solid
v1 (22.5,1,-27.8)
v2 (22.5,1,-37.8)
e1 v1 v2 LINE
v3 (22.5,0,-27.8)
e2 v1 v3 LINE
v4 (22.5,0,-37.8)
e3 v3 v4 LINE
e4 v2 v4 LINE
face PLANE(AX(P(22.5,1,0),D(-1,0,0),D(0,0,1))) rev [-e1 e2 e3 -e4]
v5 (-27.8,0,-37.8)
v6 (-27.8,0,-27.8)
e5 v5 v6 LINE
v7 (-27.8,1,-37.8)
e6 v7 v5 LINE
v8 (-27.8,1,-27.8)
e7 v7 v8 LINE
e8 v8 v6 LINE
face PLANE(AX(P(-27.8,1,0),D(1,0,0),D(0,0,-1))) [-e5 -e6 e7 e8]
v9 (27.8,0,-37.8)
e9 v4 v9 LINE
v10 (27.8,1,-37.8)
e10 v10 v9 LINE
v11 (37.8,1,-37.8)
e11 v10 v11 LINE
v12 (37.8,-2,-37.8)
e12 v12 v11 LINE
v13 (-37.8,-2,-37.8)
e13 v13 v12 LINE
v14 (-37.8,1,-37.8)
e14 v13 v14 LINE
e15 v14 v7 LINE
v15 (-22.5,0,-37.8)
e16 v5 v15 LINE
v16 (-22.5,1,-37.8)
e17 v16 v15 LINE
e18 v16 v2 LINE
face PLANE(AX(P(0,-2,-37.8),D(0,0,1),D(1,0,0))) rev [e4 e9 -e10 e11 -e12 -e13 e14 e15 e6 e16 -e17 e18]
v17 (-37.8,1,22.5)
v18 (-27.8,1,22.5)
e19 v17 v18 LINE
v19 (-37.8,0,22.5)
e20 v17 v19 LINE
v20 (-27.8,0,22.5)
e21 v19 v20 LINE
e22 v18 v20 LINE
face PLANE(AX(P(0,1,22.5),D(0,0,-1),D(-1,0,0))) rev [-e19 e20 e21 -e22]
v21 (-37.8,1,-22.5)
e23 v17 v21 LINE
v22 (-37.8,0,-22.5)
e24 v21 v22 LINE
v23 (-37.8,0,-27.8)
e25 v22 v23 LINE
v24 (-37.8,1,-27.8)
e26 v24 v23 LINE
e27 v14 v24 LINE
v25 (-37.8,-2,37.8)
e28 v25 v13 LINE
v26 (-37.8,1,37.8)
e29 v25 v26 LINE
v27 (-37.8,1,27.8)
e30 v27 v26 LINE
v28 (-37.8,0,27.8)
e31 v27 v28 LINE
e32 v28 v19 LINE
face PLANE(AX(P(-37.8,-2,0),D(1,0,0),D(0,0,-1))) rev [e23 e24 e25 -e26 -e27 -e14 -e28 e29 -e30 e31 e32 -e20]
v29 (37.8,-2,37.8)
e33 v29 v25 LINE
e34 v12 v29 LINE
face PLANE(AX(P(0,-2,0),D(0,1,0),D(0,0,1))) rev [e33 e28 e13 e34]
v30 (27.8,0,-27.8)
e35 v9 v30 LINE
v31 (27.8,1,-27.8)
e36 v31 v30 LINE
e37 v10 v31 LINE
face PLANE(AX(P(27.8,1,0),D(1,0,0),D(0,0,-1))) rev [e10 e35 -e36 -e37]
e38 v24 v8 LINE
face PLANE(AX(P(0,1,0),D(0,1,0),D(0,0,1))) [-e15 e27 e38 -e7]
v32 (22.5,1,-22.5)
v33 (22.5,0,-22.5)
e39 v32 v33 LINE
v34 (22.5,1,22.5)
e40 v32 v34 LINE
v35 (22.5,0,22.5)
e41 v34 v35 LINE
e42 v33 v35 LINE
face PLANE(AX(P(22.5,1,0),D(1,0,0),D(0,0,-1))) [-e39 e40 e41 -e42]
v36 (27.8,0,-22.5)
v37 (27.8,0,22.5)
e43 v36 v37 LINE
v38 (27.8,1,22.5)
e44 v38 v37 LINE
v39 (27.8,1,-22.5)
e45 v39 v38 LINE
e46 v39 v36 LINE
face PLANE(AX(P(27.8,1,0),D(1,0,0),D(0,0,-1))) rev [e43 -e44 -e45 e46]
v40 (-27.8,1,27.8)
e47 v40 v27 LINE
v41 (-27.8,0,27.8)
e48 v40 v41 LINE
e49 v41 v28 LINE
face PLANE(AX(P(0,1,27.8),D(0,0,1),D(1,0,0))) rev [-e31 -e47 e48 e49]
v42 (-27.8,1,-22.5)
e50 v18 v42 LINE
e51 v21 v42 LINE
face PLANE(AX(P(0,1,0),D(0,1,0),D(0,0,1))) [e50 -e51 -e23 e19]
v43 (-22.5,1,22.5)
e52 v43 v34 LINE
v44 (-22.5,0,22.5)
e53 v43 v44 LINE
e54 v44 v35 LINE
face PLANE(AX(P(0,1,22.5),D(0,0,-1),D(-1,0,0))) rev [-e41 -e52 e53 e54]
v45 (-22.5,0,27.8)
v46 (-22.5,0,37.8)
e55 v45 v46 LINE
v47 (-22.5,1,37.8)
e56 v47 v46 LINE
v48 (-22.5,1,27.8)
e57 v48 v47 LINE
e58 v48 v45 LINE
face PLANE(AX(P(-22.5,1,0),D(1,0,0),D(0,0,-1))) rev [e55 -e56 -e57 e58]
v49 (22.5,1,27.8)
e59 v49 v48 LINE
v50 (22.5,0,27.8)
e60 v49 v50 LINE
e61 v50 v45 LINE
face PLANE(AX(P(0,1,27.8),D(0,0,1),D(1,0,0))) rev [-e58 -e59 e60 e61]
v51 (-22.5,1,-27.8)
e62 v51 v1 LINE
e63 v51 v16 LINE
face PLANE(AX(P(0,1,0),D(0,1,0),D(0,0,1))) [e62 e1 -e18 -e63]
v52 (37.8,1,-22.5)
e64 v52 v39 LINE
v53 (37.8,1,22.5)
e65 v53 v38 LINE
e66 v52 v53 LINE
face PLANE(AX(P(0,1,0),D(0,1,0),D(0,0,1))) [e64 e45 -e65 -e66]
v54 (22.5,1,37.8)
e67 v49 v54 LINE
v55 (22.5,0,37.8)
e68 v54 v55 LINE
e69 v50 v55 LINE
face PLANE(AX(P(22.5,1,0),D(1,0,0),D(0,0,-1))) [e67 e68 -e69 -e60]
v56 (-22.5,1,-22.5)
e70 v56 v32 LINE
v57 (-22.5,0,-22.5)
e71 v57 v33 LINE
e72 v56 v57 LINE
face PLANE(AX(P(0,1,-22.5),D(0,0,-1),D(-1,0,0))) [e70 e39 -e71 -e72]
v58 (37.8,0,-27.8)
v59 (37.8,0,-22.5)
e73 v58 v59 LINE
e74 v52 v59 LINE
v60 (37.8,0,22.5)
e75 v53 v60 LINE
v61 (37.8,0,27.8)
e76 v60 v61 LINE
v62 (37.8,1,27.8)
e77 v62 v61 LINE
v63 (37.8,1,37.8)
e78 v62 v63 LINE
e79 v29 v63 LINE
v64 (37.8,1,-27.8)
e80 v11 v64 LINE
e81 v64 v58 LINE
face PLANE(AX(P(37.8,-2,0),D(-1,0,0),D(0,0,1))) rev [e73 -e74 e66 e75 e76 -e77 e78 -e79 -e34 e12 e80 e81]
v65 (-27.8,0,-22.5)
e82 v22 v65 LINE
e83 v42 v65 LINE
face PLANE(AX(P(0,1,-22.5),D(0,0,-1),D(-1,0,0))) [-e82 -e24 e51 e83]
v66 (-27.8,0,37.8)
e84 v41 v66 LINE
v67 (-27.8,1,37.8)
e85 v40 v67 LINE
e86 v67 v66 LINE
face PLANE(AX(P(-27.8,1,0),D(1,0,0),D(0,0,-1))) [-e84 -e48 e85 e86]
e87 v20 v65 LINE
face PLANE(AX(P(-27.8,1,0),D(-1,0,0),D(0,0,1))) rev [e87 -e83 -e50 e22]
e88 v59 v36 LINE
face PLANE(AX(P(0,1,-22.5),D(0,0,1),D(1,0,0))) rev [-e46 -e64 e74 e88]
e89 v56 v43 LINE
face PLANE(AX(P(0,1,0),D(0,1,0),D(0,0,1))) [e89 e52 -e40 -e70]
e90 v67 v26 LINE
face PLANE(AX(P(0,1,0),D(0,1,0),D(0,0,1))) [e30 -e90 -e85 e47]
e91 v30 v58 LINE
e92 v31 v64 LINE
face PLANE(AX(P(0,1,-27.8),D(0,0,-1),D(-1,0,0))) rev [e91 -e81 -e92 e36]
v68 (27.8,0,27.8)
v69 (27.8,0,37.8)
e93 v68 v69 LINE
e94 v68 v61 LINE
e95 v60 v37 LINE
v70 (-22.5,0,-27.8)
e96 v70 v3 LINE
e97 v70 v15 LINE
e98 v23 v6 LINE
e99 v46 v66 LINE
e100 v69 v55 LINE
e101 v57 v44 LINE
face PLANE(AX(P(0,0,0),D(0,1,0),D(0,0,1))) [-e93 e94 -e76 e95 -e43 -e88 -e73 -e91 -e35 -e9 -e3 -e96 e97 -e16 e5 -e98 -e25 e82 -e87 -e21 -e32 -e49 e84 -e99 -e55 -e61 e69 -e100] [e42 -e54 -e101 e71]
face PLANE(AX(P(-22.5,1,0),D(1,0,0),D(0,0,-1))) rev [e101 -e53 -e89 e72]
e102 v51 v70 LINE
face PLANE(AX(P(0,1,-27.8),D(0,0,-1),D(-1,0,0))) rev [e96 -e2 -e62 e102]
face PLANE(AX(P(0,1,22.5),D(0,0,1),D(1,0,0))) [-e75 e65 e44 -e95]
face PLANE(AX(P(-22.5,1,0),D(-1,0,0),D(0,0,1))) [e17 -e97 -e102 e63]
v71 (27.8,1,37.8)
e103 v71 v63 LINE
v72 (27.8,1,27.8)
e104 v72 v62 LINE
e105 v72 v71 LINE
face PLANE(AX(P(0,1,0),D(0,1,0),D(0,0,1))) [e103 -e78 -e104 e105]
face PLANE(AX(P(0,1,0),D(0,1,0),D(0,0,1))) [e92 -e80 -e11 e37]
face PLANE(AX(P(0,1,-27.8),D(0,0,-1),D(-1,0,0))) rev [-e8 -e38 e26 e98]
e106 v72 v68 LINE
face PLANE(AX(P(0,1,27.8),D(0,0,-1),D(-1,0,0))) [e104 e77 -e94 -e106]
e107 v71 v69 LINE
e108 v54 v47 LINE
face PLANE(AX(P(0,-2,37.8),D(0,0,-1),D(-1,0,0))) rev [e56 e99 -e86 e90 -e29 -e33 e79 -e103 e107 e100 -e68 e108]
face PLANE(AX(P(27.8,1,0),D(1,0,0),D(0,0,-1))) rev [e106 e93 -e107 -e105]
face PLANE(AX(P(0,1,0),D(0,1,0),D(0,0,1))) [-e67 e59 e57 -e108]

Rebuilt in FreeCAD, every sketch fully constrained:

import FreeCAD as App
import Part
import Sketcher
Q = App.Units.Quantity

doc = App.newDocument("Part")
body = doc.addObject("PartDesign::Body", "Body")

# Sketch on XZ plane
sketch1 = doc.addObject("Sketcher::SketchObject", "Sketch")
body.addObject(sketch1)
sketch1.AttachmentSupport = (doc.XZ_Plane, [""])
sketch1.MapMode = "FlatFace"
sketch1.addGeometry(Part.LineSegment(App.Vector(-38, -38, 0), App.Vector(-38, 38, 0)), False)
sketch1.addGeometry(Part.LineSegment(App.Vector(-38, 38, 0), App.Vector(38, 38, 0)), False)
sketch1.addGeometry(Part.LineSegment(App.Vector(38, 38, 0), App.Vector(38, -38, 0)), False)
sketch1.addGeometry(Part.LineSegment(App.Vector(38, -38, 0), App.Vector(-38, -38, 0)), False)
sketch1.addConstraint(Sketcher.Constraint("Coincident", 0, 2, 1, 1))
sketch1.addConstraint(Sketcher.Constraint("Coincident", 1, 2, 2, 1))
sketch1.addConstraint(Sketcher.Constraint("Coincident", 2, 2, 3, 1))
sketch1.addConstraint(Sketcher.Constraint("Coincident", 3, 2, 0, 1))
sketch1.addConstraint(Sketcher.Constraint("Vertical", 0))
sketch1.addConstraint(Sketcher.Constraint("Horizontal", 1))
sketch1.addConstraint(Sketcher.Constraint("Vertical", 2))
sketch1.addConstraint(Sketcher.Constraint("Horizontal", 3))
sketch1.addConstraint(Sketcher.Constraint("Symmetric", 0, 2, 2, 2, -1, 1))
sketch1.addConstraint(Sketcher.Constraint("Equal", 3, 0))
sketch1.addConstraint(Sketcher.Constraint("DistanceX", 1, 1, 1, 2, Q("75.6 mm")))
pad1 = doc.addObject("PartDesign::Pad", "Pad")
body.addObject(pad1)
pad1.Profile = sketch1
pad1.Length = 2

# Sketch on XZ plane
sketch2 = doc.addObject("Sketcher::SketchObject", "Sketch001")
body.addObject(sketch2)
sketch2.AttachmentSupport = (doc.XZ_Plane, [""])
sketch2.MapMode = "FlatFace"
sketch2.addGeometry(Part.LineSegment(App.Vector(-38, 28, 0), App.Vector(-38, 38, 0)), False)
sketch2.addGeometry(Part.LineSegment(App.Vector(-38, 38, 0), App.Vector(-28, 38, 0)), False)
sketch2.addGeometry(Part.LineSegment(App.Vector(-28, 38, 0), App.Vector(-28, 28, 0)), False)
sketch2.addGeometry(Part.LineSegment(App.Vector(-28, 28, 0), App.Vector(-38, 28, 0)), False)
sketch2.addGeometry(Part.LineSegment(App.Vector(-38, -22, 0), App.Vector(-38, 22, 0)), False)
sketch2.addGeometry(Part.LineSegment(App.Vector(-38, 22, 0), App.Vector(-28, 22, 0)), False)
sketch2.addGeometry(Part.LineSegment(App.Vector(-28, 22, 0), App.Vector(-28, -22, 0)), False)
sketch2.addGeometry(Part.LineSegment(App.Vector(-28, -22, 0), App.Vector(-38, -22, 0)), False)
sketch2.addGeometry(Part.LineSegment(App.Vector(-38, -38, 0), App.Vector(-38, -28, 0)), False)
sketch2.addGeometry(Part.LineSegment(App.Vector(-38, -28, 0), App.Vector(-28, -28, 0)), False)
sketch2.addGeometry(Part.LineSegment(App.Vector(-28, -28, 0), App.Vector(-28, -38, 0)), False)
sketch2.addGeometry(Part.LineSegment(App.Vector(-28, -38, 0), App.Vector(-38, -38, 0)), False)
sketch2.addGeometry(Part.LineSegment(App.Vector(-22, -38, 0), App.Vector(-22, -28, 0)), False)
sketch2.addGeometry(Part.LineSegment(App.Vector(-22, -28, 0), App.Vector(22, -28, 0)), False)
sketch2.addGeometry(Part.LineSegment(App.Vector(22, -28, 0), App.Vector(22, -38, 0)), False)
sketch2.addGeometry(Part.LineSegment(App.Vector(22, -38, 0), App.Vector(-22, -38, 0)), False)
sketch2.addGeometry(Part.LineSegment(App.Vector(28, -38, 0), App.Vector(28, -28, 0)), False)
sketch2.addGeometry(Part.LineSegment(App.Vector(28, -28, 0), App.Vector(38, -28, 0)), False)
sketch2.addGeometry(Part.LineSegment(App.Vector(38, -28, 0), App.Vector(38, -38, 0)), False)
sketch2.addGeometry(Part.LineSegment(App.Vector(38, -38, 0), App.Vector(28, -38, 0)), False)
sketch2.addGeometry(Part.LineSegment(App.Vector(28, -22, 0), App.Vector(28, 22, 0)), False)
sketch2.addGeometry(Part.LineSegment(App.Vector(28, 22, 0), App.Vector(38, 22, 0)), False)
sketch2.addGeometry(Part.LineSegment(App.Vector(38, 22, 0), App.Vector(38, -22, 0)), False)
sketch2.addGeometry(Part.LineSegment(App.Vector(38, -22, 0), App.Vector(28, -22, 0)), False)
sketch2.addGeometry(Part.LineSegment(App.Vector(28, 28, 0), App.Vector(28, 38, 0)), False)
sketch2.addGeometry(Part.LineSegment(App.Vector(28, 38, 0), App.Vector(38, 38, 0)), False)
sketch2.addGeometry(Part.LineSegment(App.Vector(38, 38, 0), App.Vector(38, 28, 0)), False)
sketch2.addGeometry(Part.LineSegment(App.Vector(38, 28, 0), App.Vector(28, 28, 0)), False)
sketch2.addGeometry(Part.LineSegment(App.Vector(-22, 28, 0), App.Vector(-22, 38, 0)), False)
sketch2.addGeometry(Part.LineSegment(App.Vector(-22, 38, 0), App.Vector(22, 38, 0)), False)
sketch2.addGeometry(Part.LineSegment(App.Vector(22, 38, 0), App.Vector(22, 28, 0)), False)
sketch2.addGeometry(Part.LineSegment(App.Vector(22, 28, 0), App.Vector(-22, 28, 0)), False)
sketch2.addGeometry(Part.LineSegment(App.Vector(-22, -22, 0), App.Vector(-22, 22, 0)), False)
sketch2.addGeometry(Part.LineSegment(App.Vector(-22, 22, 0), App.Vector(22, 22, 0)), False)
sketch2.addGeometry(Part.LineSegment(App.Vector(22, 22, 0), App.Vector(22, -22, 0)), False)
sketch2.addGeometry(Part.LineSegment(App.Vector(22, -22, 0), App.Vector(-22, -22, 0)), False)
sketch2.addConstraint(Sketcher.Constraint("Coincident", 0, 2, 1, 1))
sketch2.addConstraint(Sketcher.Constraint("Coincident", 1, 2, 2, 1))
sketch2.addConstraint(Sketcher.Constraint("Coincident", 2, 2, 3, 1))
sketch2.addConstraint(Sketcher.Constraint("Coincident", 3, 2, 0, 1))
sketch2.addConstraint(Sketcher.Constraint("Coincident", 4, 2, 5, 1))
sketch2.addConstraint(Sketcher.Constraint("Coincident", 5, 2, 6, 1))
sketch2.addConstraint(Sketcher.Constraint("Coincident", 6, 2, 7, 1))
sketch2.addConstraint(Sketcher.Constraint("Coincident", 7, 2, 4, 1))
sketch2.addConstraint(Sketcher.Constraint("Coincident", 8, 2, 9, 1))
sketch2.addConstraint(Sketcher.Constraint("Coincident", 9, 2, 10, 1))
sketch2.addConstraint(Sketcher.Constraint("Coincident", 10, 2, 11, 1))
sketch2.addConstraint(Sketcher.Constraint("Coincident", 11, 2, 8, 1))
sketch2.addConstraint(Sketcher.Constraint("Coincident", 12, 2, 13, 1))
sketch2.addConstraint(Sketcher.Constraint("Coincident", 13, 2, 14, 1))
sketch2.addConstraint(Sketcher.Constraint("Coincident", 14, 2, 15, 1))
sketch2.addConstraint(Sketcher.Constraint("Coincident", 15, 2, 12, 1))
sketch2.addConstraint(Sketcher.Constraint("Coincident", 16, 2, 17, 1))
sketch2.addConstraint(Sketcher.Constraint("Coincident", 17, 2, 18, 1))
sketch2.addConstraint(Sketcher.Constraint("Coincident", 18, 2, 19, 1))
sketch2.addConstraint(Sketcher.Constraint("Coincident", 19, 2, 16, 1))
sketch2.addConstraint(Sketcher.Constraint("Coincident", 20, 2, 21, 1))
sketch2.addConstraint(Sketcher.Constraint("Coincident", 21, 2, 22, 1))
sketch2.addConstraint(Sketcher.Constraint("Coincident", 22, 2, 23, 1))
sketch2.addConstraint(Sketcher.Constraint("Coincident", 23, 2, 20, 1))
sketch2.addConstraint(Sketcher.Constraint("Coincident", 24, 2, 25, 1))
sketch2.addConstraint(Sketcher.Constraint("Coincident", 25, 2, 26, 1))
sketch2.addConstraint(Sketcher.Constraint("Coincident", 26, 2, 27, 1))
sketch2.addConstraint(Sketcher.Constraint("Coincident", 27, 2, 24, 1))
sketch2.addConstraint(Sketcher.Constraint("Coincident", 28, 2, 29, 1))
sketch2.addConstraint(Sketcher.Constraint("Coincident", 29, 2, 30, 1))
sketch2.addConstraint(Sketcher.Constraint("Coincident", 30, 2, 31, 1))
sketch2.addConstraint(Sketcher.Constraint("Coincident", 31, 2, 28, 1))
sketch2.addConstraint(Sketcher.Constraint("Coincident", 32, 2, 33, 1))
sketch2.addConstraint(Sketcher.Constraint("Coincident", 33, 2, 34, 1))
sketch2.addConstraint(Sketcher.Constraint("Coincident", 34, 2, 35, 1))
sketch2.addConstraint(Sketcher.Constraint("Coincident", 35, 2, 32, 1))
sketch2.addConstraint(Sketcher.Constraint("Vertical", 0))
sketch2.addConstraint(Sketcher.Constraint("Horizontal", 1))
sketch2.addConstraint(Sketcher.Constraint("Vertical", 2))
sketch2.addConstraint(Sketcher.Constraint("Horizontal", 3))
sketch2.addConstraint(Sketcher.Constraint("Vertical", 4))
sketch2.addConstraint(Sketcher.Constraint("Horizontal", 5))
sketch2.addConstraint(Sketcher.Constraint("Vertical", 6))
sketch2.addConstraint(Sketcher.Constraint("Horizontal", 7))
sketch2.addConstraint(Sketcher.Constraint("Vertical", 8))
sketch2.addConstraint(Sketcher.Constraint("Horizontal", 9))
sketch2.addConstraint(Sketcher.Constraint("Vertical", 10))
sketch2.addConstraint(Sketcher.Constraint("Horizontal", 11))
sketch2.addConstraint(Sketcher.Constraint("Vertical", 12))
sketch2.addConstraint(Sketcher.Constraint("Horizontal", 13))
sketch2.addConstraint(Sketcher.Constraint("Vertical", 14))
sketch2.addConstraint(Sketcher.Constraint("Horizontal", 15))
sketch2.addConstraint(Sketcher.Constraint("Vertical", 16))
sketch2.addConstraint(Sketcher.Constraint("Horizontal", 17))
sketch2.addConstraint(Sketcher.Constraint("Vertical", 18))
sketch2.addConstraint(Sketcher.Constraint("Horizontal", 19))
sketch2.addConstraint(Sketcher.Constraint("Vertical", 20))
sketch2.addConstraint(Sketcher.Constraint("Horizontal", 21))
sketch2.addConstraint(Sketcher.Constraint("Vertical", 22))
sketch2.addConstraint(Sketcher.Constraint("Horizontal", 23))
sketch2.addConstraint(Sketcher.Constraint("Vertical", 24))
sketch2.addConstraint(Sketcher.Constraint("Horizontal", 25))
sketch2.addConstraint(Sketcher.Constraint("Vertical", 26))
sketch2.addConstraint(Sketcher.Constraint("Horizontal", 27))
sketch2.addConstraint(Sketcher.Constraint("Vertical", 28))
sketch2.addConstraint(Sketcher.Constraint("Horizontal", 29))
sketch2.addConstraint(Sketcher.Constraint("Vertical", 30))
sketch2.addConstraint(Sketcher.Constraint("Horizontal", 31))
sketch2.addConstraint(Sketcher.Constraint("Vertical", 32))
sketch2.addConstraint(Sketcher.Constraint("Horizontal", 33))
sketch2.addConstraint(Sketcher.Constraint("Vertical", 34))
sketch2.addConstraint(Sketcher.Constraint("Horizontal", 35))
sketch2.addConstraint(Sketcher.Constraint("Symmetric", 2, 2, 16, 2, -1, 1))
sketch2.addConstraint(Sketcher.Constraint("Symmetric", 0, 2, 18, 2, -1, 1))
sketch2.addConstraint(Sketcher.Constraint("Symmetric", 6, 2, 20, 2, -1, 1))
sketch2.addConstraint(Sketcher.Constraint("Symmetric", 4, 2, 22, 2, -1, 1))
sketch2.addConstraint(Sketcher.Constraint("Symmetric", 10, 2, 24, 2, -1, 1))
sketch2.addConstraint(Sketcher.Constraint("Symmetric", 8, 2, 26, 2, -1, 1))
sketch2.addConstraint(Sketcher.Constraint("Symmetric", 14, 2, 28, 2, -1, 1))
sketch2.addConstraint(Sketcher.Constraint("Symmetric", 12, 2, 30, 2, -1, 1))
sketch2.addConstraint(Sketcher.Constraint("Symmetric", 32, 2, 34, 2, -1, 1))
sketch2.addConstraint(Sketcher.Constraint("Symmetric", 9, 2, 16, 2, -2))
sketch2.addConstraint(Sketcher.Constraint("Symmetric", 11, 2, 18, 2, -2))
sketch2.addConstraint(Sketcher.Constraint("Horizontal", 9, 2, 12, 2))
sketch2.addConstraint(Sketcher.Constraint("Horizontal", 11, 2, 14, 2))
sketch2.addConstraint(Sketcher.Constraint("Horizontal", 5, 2, 20, 2))
sketch2.addConstraint(Sketcher.Constraint("Horizontal", 21, 2, 32, 2))
sketch2.addConstraint(Sketcher.Constraint("Vertical", 3, 2, 4, 2))
sketch2.addConstraint(Sketcher.Constraint("Vertical", 2, 2, 5, 2))
sketch2.addConstraint(Sketcher.Constraint("Vertical", 15, 2, 28, 2))
sketch2.addConstraint(Sketcher.Constraint("Vertical", 31, 2, 32, 2))
sketch2.addConstraint(Sketcher.Constraint("Equal", 27, 0))
sketch2.addConstraint(Sketcher.Constraint("Equal", 35, 4))
sketch2.addConstraint(Sketcher.Constraint("DistanceX", 1, 1, 1, 2, Q("10 mm")))
sketch2.addConstraint(Sketcher.Constraint("DistanceX", 13, 1, 13, 2, Q("45 mm")))
sketch2.addConstraint(Sketcher.Constraint("DistanceX", 0, 2, -1, 1, Q("37.8 mm")))
sketch2.addConstraint(Sketcher.Constraint("DistanceY", -1, 1, 0, 2, Q("37.8 mm")))
pad2 = doc.addObject("PartDesign::Pad", "Pad001")
body.addObject(pad2)
pad2.Profile = sketch2
pad2.Length = 1
pad2.Reversed = True

doc.recompute()
